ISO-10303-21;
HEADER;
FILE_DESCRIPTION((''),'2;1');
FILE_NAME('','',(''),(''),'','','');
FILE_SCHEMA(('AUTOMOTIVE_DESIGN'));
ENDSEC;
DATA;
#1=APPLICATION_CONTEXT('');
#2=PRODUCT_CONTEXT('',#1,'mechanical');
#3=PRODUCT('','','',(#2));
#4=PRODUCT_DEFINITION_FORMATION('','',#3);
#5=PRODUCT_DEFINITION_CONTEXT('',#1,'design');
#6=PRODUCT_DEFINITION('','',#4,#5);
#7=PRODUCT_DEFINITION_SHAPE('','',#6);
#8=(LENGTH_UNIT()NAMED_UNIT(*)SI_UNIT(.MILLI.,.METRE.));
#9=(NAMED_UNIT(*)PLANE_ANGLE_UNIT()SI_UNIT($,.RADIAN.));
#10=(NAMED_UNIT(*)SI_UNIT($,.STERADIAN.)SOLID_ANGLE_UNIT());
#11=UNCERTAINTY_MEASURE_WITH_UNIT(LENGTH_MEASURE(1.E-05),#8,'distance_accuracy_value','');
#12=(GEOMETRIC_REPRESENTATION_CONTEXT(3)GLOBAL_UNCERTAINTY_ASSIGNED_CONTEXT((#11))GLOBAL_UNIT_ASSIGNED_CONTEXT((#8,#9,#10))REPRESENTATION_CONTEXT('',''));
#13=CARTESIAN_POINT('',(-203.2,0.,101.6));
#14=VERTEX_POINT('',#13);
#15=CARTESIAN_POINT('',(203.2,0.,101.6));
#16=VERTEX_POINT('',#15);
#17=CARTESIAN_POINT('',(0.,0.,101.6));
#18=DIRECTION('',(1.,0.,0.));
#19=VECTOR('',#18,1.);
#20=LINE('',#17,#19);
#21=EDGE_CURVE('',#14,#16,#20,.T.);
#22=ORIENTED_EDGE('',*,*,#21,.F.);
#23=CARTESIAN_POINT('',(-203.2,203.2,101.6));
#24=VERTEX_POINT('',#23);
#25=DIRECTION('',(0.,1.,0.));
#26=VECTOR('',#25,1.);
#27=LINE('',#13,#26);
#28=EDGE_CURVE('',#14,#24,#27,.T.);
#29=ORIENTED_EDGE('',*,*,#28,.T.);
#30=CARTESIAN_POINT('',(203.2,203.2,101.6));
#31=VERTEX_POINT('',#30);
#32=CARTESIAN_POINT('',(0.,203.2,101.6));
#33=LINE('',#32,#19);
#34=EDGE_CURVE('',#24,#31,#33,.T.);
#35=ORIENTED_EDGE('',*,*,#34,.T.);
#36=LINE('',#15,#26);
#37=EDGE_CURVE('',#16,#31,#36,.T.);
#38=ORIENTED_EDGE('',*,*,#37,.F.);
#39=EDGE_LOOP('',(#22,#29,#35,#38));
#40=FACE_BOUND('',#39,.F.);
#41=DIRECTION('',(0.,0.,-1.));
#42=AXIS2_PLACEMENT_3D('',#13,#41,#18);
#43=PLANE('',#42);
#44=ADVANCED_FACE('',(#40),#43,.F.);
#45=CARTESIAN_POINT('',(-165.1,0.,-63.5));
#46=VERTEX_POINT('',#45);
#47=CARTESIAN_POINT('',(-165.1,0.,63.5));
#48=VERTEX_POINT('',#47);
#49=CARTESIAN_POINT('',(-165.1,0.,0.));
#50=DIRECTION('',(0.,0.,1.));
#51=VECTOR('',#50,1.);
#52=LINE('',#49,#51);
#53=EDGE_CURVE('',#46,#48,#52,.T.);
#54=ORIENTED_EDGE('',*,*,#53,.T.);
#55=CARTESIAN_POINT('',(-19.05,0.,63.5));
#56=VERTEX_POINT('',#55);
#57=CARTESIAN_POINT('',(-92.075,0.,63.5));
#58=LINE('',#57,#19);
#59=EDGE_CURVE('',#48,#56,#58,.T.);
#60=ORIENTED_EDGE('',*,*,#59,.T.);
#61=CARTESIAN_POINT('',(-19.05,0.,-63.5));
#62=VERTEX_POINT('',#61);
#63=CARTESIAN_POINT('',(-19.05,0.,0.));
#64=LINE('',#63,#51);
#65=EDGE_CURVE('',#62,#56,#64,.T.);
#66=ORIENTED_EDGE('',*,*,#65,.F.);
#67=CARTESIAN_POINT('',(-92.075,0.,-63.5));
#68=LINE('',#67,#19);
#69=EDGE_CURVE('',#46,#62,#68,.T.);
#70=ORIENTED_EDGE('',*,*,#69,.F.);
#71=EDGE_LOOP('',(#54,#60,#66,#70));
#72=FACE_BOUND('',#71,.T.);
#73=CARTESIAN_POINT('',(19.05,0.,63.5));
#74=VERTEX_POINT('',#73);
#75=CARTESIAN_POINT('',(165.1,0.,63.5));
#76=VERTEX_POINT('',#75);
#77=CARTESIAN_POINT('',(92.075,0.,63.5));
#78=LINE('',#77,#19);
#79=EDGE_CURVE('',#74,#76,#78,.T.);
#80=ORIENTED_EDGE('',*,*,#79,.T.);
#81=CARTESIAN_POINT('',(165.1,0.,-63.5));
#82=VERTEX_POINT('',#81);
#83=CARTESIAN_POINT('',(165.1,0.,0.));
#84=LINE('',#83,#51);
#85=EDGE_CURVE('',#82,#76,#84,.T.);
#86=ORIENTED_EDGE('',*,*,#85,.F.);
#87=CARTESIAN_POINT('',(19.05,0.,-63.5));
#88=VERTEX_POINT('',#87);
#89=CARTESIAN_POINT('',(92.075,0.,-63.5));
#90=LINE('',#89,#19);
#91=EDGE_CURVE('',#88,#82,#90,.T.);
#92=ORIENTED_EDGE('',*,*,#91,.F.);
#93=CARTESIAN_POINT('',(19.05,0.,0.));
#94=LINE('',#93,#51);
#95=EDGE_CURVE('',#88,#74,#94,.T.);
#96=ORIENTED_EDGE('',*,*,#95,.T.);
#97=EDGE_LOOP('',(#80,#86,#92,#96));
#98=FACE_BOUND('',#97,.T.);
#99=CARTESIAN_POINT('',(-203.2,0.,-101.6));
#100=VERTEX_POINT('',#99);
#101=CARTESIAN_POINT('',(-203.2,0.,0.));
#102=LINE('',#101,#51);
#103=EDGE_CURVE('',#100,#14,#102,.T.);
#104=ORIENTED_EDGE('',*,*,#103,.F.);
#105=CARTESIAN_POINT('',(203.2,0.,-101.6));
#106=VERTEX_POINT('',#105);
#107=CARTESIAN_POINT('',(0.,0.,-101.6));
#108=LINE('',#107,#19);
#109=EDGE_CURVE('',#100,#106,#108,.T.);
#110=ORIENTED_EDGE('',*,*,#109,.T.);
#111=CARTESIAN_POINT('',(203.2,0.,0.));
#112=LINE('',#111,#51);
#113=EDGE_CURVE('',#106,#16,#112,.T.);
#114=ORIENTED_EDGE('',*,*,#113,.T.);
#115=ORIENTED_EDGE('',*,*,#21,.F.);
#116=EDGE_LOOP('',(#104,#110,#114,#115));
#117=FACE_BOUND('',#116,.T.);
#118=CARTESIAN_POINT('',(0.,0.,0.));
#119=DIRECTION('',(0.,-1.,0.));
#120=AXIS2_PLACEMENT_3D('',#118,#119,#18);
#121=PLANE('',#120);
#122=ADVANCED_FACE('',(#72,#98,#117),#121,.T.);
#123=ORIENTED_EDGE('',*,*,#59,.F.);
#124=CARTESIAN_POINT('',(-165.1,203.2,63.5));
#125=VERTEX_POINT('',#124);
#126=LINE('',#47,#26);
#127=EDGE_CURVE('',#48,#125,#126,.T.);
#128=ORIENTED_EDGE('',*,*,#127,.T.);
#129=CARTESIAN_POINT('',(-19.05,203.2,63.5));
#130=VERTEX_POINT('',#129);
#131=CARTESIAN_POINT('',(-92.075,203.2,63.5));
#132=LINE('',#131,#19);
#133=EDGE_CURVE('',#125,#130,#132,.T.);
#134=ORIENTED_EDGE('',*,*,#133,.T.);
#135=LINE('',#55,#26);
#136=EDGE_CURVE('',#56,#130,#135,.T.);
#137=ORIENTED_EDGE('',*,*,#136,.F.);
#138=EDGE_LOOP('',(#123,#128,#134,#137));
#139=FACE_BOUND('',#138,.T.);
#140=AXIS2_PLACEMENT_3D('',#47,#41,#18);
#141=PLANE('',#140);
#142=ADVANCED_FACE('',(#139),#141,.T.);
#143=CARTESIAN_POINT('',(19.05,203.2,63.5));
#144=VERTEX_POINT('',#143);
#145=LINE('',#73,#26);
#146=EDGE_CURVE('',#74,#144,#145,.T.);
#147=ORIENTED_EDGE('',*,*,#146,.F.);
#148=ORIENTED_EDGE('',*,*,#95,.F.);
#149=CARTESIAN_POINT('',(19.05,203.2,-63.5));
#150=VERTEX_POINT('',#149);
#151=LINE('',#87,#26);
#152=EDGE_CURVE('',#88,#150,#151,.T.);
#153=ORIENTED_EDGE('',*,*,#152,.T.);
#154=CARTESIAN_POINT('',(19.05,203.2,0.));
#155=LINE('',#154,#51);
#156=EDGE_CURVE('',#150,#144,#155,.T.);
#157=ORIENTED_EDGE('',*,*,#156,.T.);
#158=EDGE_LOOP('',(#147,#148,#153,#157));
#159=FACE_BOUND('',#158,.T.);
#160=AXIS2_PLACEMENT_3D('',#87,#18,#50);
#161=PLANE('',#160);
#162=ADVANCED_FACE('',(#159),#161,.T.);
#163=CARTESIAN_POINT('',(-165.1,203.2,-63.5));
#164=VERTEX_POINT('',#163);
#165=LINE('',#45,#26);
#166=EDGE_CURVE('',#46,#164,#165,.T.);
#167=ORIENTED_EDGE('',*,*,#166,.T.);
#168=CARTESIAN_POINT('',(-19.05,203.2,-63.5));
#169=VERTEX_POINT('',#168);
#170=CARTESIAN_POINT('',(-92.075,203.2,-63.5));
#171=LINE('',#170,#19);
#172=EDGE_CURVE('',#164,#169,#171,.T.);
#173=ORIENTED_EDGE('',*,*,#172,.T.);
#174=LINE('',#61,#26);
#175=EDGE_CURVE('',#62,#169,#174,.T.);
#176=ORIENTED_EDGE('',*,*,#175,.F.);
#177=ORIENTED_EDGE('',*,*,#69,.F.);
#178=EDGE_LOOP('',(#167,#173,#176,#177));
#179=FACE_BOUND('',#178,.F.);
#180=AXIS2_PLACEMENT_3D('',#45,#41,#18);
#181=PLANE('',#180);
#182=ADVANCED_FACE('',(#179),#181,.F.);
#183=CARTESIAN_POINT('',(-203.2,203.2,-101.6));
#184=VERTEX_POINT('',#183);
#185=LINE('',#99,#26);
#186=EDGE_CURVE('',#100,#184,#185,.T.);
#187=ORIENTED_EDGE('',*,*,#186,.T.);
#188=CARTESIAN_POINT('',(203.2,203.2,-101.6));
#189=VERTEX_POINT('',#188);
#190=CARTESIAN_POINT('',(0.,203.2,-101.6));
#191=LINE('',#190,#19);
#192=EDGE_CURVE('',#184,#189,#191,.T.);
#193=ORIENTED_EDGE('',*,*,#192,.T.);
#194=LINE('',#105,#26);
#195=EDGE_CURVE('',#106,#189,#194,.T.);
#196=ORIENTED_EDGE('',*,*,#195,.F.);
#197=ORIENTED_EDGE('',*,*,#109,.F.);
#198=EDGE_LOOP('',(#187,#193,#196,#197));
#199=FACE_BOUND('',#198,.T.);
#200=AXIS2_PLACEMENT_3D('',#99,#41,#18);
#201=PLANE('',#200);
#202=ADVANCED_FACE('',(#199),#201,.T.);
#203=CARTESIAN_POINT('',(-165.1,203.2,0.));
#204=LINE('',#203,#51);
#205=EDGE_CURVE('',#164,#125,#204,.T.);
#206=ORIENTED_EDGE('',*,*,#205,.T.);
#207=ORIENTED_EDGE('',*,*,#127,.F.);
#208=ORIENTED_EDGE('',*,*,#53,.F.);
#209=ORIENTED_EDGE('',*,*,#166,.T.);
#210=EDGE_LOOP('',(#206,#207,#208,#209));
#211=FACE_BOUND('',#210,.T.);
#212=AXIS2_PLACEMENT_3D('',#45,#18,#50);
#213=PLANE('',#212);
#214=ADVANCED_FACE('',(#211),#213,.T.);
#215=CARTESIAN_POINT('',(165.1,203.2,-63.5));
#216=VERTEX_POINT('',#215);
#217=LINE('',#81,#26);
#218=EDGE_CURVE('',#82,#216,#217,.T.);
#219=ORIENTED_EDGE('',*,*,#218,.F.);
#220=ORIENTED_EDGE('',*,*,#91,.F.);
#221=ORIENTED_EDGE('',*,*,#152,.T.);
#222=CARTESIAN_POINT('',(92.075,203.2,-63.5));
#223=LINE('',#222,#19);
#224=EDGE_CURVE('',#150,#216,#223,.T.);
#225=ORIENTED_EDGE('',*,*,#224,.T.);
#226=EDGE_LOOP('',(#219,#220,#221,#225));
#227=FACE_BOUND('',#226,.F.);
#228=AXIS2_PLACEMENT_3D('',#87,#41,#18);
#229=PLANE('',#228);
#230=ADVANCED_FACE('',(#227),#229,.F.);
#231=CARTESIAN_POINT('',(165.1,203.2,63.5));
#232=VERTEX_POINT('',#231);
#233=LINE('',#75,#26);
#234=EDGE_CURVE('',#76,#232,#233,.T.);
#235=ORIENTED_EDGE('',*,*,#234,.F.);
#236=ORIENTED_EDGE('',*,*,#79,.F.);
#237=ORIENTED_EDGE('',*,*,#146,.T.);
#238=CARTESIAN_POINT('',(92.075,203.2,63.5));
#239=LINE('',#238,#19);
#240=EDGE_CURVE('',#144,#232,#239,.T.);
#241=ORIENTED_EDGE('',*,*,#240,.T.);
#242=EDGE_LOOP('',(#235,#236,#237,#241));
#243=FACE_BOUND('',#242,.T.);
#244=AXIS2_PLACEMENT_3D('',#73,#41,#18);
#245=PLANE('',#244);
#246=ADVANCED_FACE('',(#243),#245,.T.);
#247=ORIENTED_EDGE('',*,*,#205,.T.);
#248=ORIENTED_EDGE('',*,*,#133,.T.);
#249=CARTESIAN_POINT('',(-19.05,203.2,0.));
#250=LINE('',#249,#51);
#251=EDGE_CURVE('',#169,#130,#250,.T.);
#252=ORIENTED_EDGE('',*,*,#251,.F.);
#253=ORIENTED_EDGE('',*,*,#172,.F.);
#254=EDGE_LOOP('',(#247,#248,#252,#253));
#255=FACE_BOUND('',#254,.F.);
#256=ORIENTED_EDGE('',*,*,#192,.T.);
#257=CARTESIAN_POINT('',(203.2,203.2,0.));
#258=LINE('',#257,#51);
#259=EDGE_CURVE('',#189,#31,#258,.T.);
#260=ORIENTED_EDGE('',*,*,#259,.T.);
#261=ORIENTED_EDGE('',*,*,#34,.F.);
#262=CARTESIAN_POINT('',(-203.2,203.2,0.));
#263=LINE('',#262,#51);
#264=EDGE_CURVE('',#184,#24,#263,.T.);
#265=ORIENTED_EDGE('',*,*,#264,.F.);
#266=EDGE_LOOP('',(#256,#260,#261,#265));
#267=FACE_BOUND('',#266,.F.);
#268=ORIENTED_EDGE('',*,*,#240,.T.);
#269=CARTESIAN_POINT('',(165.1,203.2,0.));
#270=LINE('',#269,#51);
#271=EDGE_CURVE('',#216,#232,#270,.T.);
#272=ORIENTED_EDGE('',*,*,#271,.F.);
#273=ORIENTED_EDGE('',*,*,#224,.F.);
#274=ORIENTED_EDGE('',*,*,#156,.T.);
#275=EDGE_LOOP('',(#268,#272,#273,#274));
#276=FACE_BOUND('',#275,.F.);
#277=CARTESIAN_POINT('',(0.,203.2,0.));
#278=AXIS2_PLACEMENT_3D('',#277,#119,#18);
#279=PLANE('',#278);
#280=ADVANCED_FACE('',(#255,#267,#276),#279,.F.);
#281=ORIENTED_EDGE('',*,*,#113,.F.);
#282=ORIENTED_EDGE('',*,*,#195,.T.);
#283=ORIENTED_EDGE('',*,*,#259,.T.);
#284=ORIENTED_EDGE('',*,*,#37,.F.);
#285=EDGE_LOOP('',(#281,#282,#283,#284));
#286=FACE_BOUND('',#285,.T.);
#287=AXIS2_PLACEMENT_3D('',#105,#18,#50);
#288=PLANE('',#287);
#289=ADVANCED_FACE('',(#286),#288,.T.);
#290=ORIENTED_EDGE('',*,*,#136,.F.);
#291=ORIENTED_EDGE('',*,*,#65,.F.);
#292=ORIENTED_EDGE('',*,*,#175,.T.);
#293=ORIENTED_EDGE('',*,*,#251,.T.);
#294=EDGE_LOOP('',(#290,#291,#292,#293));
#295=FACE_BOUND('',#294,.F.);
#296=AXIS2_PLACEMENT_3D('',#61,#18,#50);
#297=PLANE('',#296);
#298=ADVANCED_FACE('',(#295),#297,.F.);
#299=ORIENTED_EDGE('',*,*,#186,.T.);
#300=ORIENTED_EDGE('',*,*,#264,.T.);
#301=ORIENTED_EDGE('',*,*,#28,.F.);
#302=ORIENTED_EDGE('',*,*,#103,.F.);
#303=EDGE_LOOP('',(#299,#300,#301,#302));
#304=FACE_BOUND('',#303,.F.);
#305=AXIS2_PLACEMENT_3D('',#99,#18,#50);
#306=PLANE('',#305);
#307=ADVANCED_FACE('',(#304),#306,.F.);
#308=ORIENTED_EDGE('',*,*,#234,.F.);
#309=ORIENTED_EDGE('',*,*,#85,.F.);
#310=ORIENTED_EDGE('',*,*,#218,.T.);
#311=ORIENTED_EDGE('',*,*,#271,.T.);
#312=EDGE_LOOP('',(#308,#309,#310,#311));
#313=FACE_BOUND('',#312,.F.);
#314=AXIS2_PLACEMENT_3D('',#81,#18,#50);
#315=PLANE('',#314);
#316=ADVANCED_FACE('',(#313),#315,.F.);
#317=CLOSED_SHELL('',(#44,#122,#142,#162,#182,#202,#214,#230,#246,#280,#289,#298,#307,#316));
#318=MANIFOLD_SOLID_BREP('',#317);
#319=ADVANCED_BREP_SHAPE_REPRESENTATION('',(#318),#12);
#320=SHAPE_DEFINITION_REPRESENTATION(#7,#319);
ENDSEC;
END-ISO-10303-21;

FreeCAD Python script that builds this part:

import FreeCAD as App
import Part
import Sketcher
from FreeCAD import Vector
Q = App.Units.Quantity


def add_polygon(sketch, points):
    """Adds a closed chain of lines whose ends are joined by coincident constraints."""
    first, n = sketch.GeometryCount, len(points)
    for a, b in zip(points, points[1:] + points[:1]):
        sketch.addGeometry(Part.LineSegment(App.Vector(*a, 0), App.Vector(*b, 0)), False)
    for i in range(n):
        sketch.addConstraint(Sketcher.Constraint("Coincident", first + i, 2, first + (i + 1) % n, 1))

doc = App.newDocument("Part")
body = doc.addObject("PartDesign::Body", "Body")

# Sketch on XZ plane
sketch1 = body.newObject("Sketcher::SketchObject", "Sketch")
sketch1.AttachmentSupport = (doc.getObject("XZ_Plane"), [""])
sketch1.MapMode = "FlatFace"
add_polygon(sketch1, [(-203, 102), (-203, -102), (203, -102), (203, 102)])  # lines 0-3
add_polygon(sketch1, [(-19, -64), (-165, -64), (-165, 64), (-19, 64)])  # lines 4-7
add_polygon(sketch1, [(165, -64), (19, -64), (19, 64), (165, 64)])  # lines 8-11
sketch1.addConstraint(Sketcher.Constraint("Vertical", 0))
sketch1.addConstraint(Sketcher.Constraint("Horizontal", 1))
sketch1.addConstraint(Sketcher.Constraint("Vertical", 2))
sketch1.addConstraint(Sketcher.Constraint("Horizontal", 3))
sketch1.addConstraint(Sketcher.Constraint("Horizontal", 4))
sketch1.addConstraint(Sketcher.Constraint("Vertical", 5))
sketch1.addConstraint(Sketcher.Constraint("Horizontal", 6))
sketch1.addConstraint(Sketcher.Constraint("Vertical", 7))
sketch1.addConstraint(Sketcher.Constraint("Horizontal", 8))
sketch1.addConstraint(Sketcher.Constraint("Vertical", 9))
sketch1.addConstraint(Sketcher.Constraint("Horizontal", 10))
sketch1.addConstraint(Sketcher.Constraint("Vertical", 11))
sketch1.addConstraint(Sketcher.Constraint("Symmetric", 0, 2, 2, 2, -1, 1))
sketch1.addConstraint(Sketcher.Constraint("Symmetric", 6, 2, 8, 2, -1, 1))
sketch1.addConstraint(Sketcher.Constraint("Symmetric", 4, 2, 10, 2, -1, 1))
sketch1.addConstraint(Sketcher.Constraint("Horizontal", 7, 2, 8, 2))
sketch1.addConstraint(Sketcher.Constraint("DistanceX", 1, 1, 1, 2, Q("16 in")))
sketch1.addConstraint(Sketcher.Constraint("DistanceY", 0, 2, 0, 1, Q("8 in")))
sketch1.addConstraint(Sketcher.Constraint("DistanceY", 5, 1, 5, 2, Q("5 in")))
sketch1.addConstraint(Sketcher.Constraint("DistanceX", 4, 2, 4, 1, Q("5.75 in")))
sketch1.addConstraint(Sketcher.Constraint("DistanceX", 4, 2, -1, 1, Q("6.5 in")))
pad1 = body.newObject("PartDesign::Pad", "Pad")
pad1.Profile = sketch1
pad1.Length = Q("8 in")
pad1.Reversed = True

doc.recompute()
